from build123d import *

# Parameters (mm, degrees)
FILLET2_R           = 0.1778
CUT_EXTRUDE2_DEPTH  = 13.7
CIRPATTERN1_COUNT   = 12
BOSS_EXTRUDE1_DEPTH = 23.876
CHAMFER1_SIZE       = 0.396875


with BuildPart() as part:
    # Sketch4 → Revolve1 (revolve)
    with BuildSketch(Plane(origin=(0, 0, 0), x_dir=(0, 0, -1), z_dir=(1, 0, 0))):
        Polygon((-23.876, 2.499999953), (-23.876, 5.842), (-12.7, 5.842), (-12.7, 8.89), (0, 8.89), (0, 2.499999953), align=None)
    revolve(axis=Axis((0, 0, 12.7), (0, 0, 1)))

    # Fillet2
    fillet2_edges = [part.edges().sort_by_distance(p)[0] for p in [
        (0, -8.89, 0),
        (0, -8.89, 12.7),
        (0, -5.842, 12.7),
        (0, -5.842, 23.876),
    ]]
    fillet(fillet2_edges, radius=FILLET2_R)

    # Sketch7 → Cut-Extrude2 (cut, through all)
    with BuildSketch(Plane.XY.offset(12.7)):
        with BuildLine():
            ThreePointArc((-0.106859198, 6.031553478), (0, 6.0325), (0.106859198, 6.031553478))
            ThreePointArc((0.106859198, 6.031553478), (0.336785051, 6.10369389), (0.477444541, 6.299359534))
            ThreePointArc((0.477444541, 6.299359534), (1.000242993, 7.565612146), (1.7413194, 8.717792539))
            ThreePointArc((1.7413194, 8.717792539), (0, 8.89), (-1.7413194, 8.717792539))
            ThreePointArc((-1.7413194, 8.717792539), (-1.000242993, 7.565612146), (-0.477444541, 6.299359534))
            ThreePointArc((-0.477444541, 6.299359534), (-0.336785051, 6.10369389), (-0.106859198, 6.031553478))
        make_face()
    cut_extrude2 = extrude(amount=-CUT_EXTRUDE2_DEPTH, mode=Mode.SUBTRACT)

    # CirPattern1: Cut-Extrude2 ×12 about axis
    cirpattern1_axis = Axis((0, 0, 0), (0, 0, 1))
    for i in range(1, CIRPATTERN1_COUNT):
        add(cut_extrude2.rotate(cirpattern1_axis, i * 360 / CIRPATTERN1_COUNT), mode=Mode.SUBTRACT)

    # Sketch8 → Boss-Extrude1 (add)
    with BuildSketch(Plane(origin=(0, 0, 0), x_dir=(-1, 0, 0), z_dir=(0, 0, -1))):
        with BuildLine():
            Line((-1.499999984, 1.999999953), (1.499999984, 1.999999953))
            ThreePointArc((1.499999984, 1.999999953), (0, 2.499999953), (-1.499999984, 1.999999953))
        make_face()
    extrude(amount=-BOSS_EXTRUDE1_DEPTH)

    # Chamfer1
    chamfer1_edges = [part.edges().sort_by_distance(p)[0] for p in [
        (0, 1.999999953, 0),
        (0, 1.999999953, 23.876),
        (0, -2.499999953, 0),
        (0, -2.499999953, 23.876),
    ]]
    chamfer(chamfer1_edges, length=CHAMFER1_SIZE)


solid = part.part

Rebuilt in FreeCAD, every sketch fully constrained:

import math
import FreeCAD as App
import Part
import Sketcher

V = App.Vector
Q = App.Units.Quantity


def edges_at(feature, points):
    """Names of the edges that pass closest to the given points."""
    edges = feature.Shape.Edges
    near = lambda p: min(range(len(edges)), key=lambda i: edges[i].distToShape(Part.Vertex(*p))[0])
    return sorted({f"Edge{near(p) + 1}" for p in points})

doc = App.newDocument("Part")
params = doc.addObject("Spreadsheet::Sheet", "Params")
for row, (alias, value) in enumerate([
    ("sketch1_height", "0.5 in"),
    ("sketch1_width", "0.12 in"),
    ("sketch1_height2", "0.94 in"),
    ("revolution_angle", "360 deg"),
    ("fillet_radius", "0.007 in"),
    ("sketch2_radius", "0.3 in"),
    ("sketch2_radius2", "0.35 in"),
    ("pad1_length", "0.94 in"),
    ("chamfer_size", "0.015625 in"),
], start=1):
    params.set(f"A{row}", alias)
    params.set(f"B{row}", "=" + value)
    params.setAlias(f"B{row}", alias)

body = doc.addObject("PartDesign::Body", "Body")

# Sketch on YZ plane
sketch1 = body.newObject("Sketcher::SketchObject", "Sketch")
sketch1.AttachmentSupport = (doc.getObject("YZ_Plane"), [""])
sketch1.MapMode = "FlatFace"
sketch1.addGeometry([
    Part.LineSegment(V(5.8, 23.9, 0), V(2.5, 23.9, 0)),  # 0
    Part.LineSegment(V(2.5, 23.9, 0), V(2.5, 0, 0)),  # 1
    Part.LineSegment(V(2.5, 0, 0), V(8.9, 0, 0)),  # 2
    Part.LineSegment(V(8.9, 0, 0), V(8.9, 12.7, 0)),  # 3
    Part.LineSegment(V(8.9, 12.7, 0), V(5.8, 12.7, 0)),  # 4
    Part.LineSegment(V(5.8, 12.7, 0), V(5.8, 23.9, 0)),  # 5
], False)
sketch1.addConstraint([
    Sketcher.Constraint("Coincident", 0, 2, 1, 1),
    Sketcher.Constraint("Coincident", 1, 2, 2, 1),
    Sketcher.Constraint("Coincident", 2, 2, 3, 1),
    Sketcher.Constraint("Coincident", 3, 2, 4, 1),
    Sketcher.Constraint("Coincident", 4, 2, 5, 1),
    Sketcher.Constraint("Coincident", 5, 2, 0, 1),
    Sketcher.Constraint("Horizontal", 0),
    Sketcher.Constraint("Vertical", 1),
    Sketcher.Constraint("Horizontal", 2),
    Sketcher.Constraint("Vertical", 3),
    Sketcher.Constraint("Horizontal", 4),
    Sketcher.Constraint("Vertical", 5),
    Sketcher.Constraint("PointOnObject", 1, 2, -1),
    Sketcher.Constraint("DistanceY", 3, 1, 3, 2, Q("0.5 in")),
    Sketcher.Constraint("DistanceX", 4, 2, 4, 1, Q("0.12 in")),
    Sketcher.Constraint("DistanceY", 1, 2, 1, 1, Q("0.94 in")),
    Sketcher.Constraint("DistanceX", -1, 1, 2, 2, Q("0.35 in")),
    Sketcher.Constraint("DistanceX", 0, 2, 0, 1, Q("3.342 mm")),
])
sketch1.setExpression("Constraints[13]", "Params.sketch1_height")
sketch1.setExpression("Constraints[14]", "Params.sketch1_width")
sketch1.setExpression("Constraints[15]", "Params.sketch1_height2")
revolution = body.newObject("PartDesign::Revolution", "Revolution")
revolution.Profile = sketch1
revolution.ReferenceAxis = (sketch1, ["V_Axis"])
revolution.setExpression("Angle", "Params.revolution_angle")
doc.recompute()

fillet = body.newObject("PartDesign::Fillet", "Fillet")
fillet.Base = (revolution, edges_at(revolution, [
    (0, -8.89, 0),
    (0, -8.89, 12.7),
    (0, -5.842, 12.7),
    (0, -5.842, 23.876),
]))
fillet.setExpression("Radius", "Params.fillet_radius")

# Sketch on XY plane
sketch2 = body.newObject("Sketcher::SketchObject", "Sketch001")
sketch2.AttachmentSupport = (doc.getObject("XY_Plane"), [""])
sketch2.MapMode = "FlatFace"
sketch2.AttachmentOffset = App.Placement(V(0, 0, 0.5 * 25.4), App.Rotation())
sketch2.addGeometry([
    Part.ArcOfCircle(Part.Circle(V(0, 0, 0), V(0, 0, 1), 6.03), math.radians(88.99), math.radians(91.01)),  # 0
    Part.ArcOfCircle(Part.Circle(V(0.11, 6.41, 0), V(0, 0, 1), 0.38), math.radians(-91), math.radians(-17)),  # 1
    Part.ArcOfCircle(Part.Circle(V(7.75, 4.04, 0), V(0, 0, 1), 7.62), math.radians(142), math.radians(163)),  # 2
    Part.ArcOfCircle(Part.Circle(V(0, 0, 0), V(0, 0, 1), 8.89), math.radians(79), math.radians(101)),  # 3
    Part.ArcOfCircle(Part.Circle(V(-7.75, 4.04, 0), V(0, 0, 1), 7.62), math.radians(17), math.radians(38)),  # 4
    Part.ArcOfCircle(Part.Circle(V(-0.11, 6.41, 0), V(0, 0, 1), 0.38), math.radians(-163), math.radians(-89)),  # 5
], False)
sketch2.addConstraint([
    Sketcher.Constraint("Tangent", 0, 1, 1, 1),
    Sketcher.Constraint("Tangent", 1, 2, 2, 2),
    Sketcher.Constraint("Coincident", 2, 1, 3, 1),
    Sketcher.Constraint("Coincident", 3, 2, 4, 2),
    Sketcher.Constraint("Tangent", 4, 1, 5, 1),
    Sketcher.Constraint("Tangent", 5, 2, 0, 2),
    Sketcher.Constraint("Coincident", 0, 3, -1, 1),
    Sketcher.Constraint("Coincident", 3, 3, -1, 1),
    Sketcher.Constraint("Equal", 2, 4),
    Sketcher.Constraint("Equal", 1, 5),
    Sketcher.Constraint("Symmetric", 2, 3, 4, 3, -2),
    Sketcher.Constraint("Radius", 2, Q("0.3 in")),
    Sketcher.Constraint("Radius", 3, Q("0.35 in")),
    Sketcher.Constraint("Radius", 0, Q("0.2374999 in")),
    Sketcher.Constraint("Radius", 1, Q("0.381028 mm")),
    Sketcher.Constraint("DistanceX", -1, 1, 1, 3, Q("0.113609 mm")),
    Sketcher.Constraint("DistanceX", -1, 1, 2, 3, Q("7.753632 mm")),
])
sketch2.setExpression("Constraints[11]", "Params.sketch2_radius")
sketch2.setExpression("Constraints[12]", "Params.sketch2_radius2")
pocket1 = body.newObject("PartDesign::Pocket", "Pocket")
pocket1.Profile = sketch2
pocket1.Type = "ThroughAll"
doc.recompute()

polarpattern = body.newObject("PartDesign::PolarPattern", "PolarPattern")
polarpattern.Originals = [pocket1]
polarpattern.Axis = (doc.getObject("Z_Axis"), [""])
polarpattern.Angle = 360
polarpattern.Occurrences = 12
body.Tip = polarpattern

# Sketch on XY plane
sketch3 = body.newObject("Sketcher::SketchObject", "Sketch002")
sketch3.AttachmentSupport = (doc.getObject("XY_Plane"), [""])
sketch3.MapMode = "FlatFace"
sketch3.addGeometry([
    Part.LineSegment(V(1.5, 2, 0), V(-1.5, 2, 0)),
    Part.ArcOfCircle(Part.Circle(V(0, 0, 0), V(0, 0, 1), 2.5), math.radians(53), math.radians(127)),
], False)
sketch3.addConstraint([
    Sketcher.Constraint("Coincident", 0, 1, 1, 1),
    Sketcher.Constraint("Coincident", 1, 2, 0, 2),
    Sketcher.Constraint("Horizontal", 0),
    Sketcher.Constraint("Coincident", 1, 3, -1, 1),
    Sketcher.Constraint("Radius", 1, Q("2.5 mm")),
    Sketcher.Constraint("DistanceX", 0, 2, 0, 1, Q("3 mm")),
])
pad1 = body.newObject("PartDesign::Pad", "Pad")
pad1.Profile = sketch3
pad1.setExpression("Length", "Params.pad1_length")
doc.recompute()

chamfer = body.newObject("PartDesign::Chamfer", "Chamfer")
chamfer.Base = (pad1, edges_at(pad1, [
    (0, 2, 0),
    (0, 2, 23.876),
    (0, -2.5, 0),
    (0, -2.5, 23.876),
]))
chamfer.setExpression("Size", "Params.chamfer_size")

doc.recompute()
